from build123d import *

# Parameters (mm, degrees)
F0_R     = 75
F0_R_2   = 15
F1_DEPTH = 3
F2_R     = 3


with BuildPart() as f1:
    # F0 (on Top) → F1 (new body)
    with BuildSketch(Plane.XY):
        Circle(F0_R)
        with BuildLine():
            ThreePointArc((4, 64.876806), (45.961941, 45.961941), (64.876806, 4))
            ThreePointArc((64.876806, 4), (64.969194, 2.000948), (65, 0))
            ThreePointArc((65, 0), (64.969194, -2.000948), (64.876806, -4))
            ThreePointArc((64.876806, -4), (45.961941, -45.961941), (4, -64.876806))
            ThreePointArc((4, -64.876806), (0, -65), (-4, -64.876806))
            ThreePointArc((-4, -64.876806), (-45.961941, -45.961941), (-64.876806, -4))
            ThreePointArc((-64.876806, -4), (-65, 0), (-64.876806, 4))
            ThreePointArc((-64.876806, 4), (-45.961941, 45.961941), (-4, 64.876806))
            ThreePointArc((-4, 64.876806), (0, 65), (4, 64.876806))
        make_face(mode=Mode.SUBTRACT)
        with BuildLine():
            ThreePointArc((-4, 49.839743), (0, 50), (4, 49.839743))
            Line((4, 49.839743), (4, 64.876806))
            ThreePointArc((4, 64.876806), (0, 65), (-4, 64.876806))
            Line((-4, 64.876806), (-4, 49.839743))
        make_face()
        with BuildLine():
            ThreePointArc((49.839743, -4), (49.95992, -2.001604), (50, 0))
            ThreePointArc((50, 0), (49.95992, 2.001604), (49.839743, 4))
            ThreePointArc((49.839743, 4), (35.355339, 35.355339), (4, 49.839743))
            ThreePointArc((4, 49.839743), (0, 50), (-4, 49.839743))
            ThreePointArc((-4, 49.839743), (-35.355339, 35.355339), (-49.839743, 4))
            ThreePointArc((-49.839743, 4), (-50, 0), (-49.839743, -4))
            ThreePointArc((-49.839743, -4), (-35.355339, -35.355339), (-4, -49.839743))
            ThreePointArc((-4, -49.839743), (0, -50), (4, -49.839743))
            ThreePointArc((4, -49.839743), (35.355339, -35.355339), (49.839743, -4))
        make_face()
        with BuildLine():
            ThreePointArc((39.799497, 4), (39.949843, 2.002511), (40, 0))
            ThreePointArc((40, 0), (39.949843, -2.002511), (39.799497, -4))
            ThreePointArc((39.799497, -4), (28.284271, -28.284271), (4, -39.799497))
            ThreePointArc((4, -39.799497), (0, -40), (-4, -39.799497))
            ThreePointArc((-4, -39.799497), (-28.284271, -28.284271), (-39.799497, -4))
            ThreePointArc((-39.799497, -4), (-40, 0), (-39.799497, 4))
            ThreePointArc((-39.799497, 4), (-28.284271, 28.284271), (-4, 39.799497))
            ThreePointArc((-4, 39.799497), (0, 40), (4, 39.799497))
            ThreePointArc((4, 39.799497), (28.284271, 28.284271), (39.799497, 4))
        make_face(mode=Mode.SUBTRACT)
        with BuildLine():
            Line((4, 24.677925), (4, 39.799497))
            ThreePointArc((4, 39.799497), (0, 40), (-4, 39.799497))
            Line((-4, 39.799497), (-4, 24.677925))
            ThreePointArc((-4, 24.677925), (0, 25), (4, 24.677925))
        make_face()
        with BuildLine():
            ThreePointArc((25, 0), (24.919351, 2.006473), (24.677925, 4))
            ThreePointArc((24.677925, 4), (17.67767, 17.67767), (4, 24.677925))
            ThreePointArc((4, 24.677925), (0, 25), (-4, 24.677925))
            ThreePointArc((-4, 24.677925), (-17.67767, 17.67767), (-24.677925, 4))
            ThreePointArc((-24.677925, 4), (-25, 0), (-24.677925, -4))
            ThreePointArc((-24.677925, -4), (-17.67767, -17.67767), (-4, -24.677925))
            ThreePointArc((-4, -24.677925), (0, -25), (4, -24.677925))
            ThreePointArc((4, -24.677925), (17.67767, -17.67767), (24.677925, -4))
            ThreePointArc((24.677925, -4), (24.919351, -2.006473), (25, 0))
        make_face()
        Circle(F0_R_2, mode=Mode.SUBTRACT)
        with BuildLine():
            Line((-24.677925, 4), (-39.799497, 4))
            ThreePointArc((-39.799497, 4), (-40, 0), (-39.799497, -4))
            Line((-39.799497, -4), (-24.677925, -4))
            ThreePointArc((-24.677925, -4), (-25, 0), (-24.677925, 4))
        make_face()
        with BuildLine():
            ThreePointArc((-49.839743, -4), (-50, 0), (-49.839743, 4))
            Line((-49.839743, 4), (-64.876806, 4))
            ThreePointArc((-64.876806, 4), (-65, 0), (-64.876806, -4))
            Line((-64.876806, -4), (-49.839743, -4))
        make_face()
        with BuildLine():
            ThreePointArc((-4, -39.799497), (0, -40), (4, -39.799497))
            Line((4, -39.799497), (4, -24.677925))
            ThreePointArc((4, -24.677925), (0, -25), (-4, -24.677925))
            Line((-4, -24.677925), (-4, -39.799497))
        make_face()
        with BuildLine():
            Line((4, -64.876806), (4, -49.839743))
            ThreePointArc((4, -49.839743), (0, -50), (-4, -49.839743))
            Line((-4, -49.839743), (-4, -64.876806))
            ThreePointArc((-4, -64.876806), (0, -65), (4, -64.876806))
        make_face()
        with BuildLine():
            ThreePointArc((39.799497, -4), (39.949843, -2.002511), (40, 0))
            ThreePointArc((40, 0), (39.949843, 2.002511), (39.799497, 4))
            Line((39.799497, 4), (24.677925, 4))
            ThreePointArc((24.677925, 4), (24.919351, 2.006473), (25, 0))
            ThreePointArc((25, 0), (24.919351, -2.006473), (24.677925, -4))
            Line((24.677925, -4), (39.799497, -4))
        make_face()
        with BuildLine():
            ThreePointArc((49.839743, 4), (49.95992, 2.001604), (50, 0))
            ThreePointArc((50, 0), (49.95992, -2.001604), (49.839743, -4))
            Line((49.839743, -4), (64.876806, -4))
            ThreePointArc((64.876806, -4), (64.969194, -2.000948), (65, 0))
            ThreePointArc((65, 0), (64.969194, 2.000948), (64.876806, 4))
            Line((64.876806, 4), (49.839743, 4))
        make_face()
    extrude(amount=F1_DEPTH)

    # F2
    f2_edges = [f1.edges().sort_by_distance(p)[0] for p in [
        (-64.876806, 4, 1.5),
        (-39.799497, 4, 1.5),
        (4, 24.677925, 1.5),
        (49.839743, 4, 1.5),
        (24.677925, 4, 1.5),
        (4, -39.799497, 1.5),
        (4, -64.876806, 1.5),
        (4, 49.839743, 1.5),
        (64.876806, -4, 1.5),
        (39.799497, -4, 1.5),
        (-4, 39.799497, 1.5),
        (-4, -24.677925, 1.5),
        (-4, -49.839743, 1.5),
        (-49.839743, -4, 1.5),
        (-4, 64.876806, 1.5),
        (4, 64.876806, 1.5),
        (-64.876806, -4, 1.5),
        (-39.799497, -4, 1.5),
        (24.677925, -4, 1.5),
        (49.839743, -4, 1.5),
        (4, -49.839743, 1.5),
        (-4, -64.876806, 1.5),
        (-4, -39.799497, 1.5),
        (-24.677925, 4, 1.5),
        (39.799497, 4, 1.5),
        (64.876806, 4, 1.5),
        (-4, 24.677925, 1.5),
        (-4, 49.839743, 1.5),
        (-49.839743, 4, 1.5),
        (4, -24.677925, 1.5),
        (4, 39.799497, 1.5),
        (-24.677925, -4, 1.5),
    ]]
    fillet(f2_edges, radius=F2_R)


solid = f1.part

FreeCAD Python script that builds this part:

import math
import FreeCAD as App
import Part
import Sketcher
Q = App.Units.Quantity


def edges_at(feature, points):
    """Names of the edges that pass closest to the given points."""
    edges = feature.Shape.Edges
    near = lambda p: min(range(len(edges)), key=lambda i: edges[i].distToShape(Part.Vertex(*p))[0])
    return sorted({f"Edge{near(p) + 1}" for p in points})

doc = App.newDocument("Part")
body = doc.addObject("PartDesign::Body", "Body")

# Sketch on XY plane
sketch1 = doc.addObject("Sketcher::SketchObject", "Sketch")
body.addObject(sketch1)
sketch1.AttachmentSupport = (doc.XY_Plane, [""])
sketch1.MapMode = "FlatFace"
sketch1.addGeometry([
    Part.Circle(App.Vector(0, 0, 0), App.Vector(0, 0, 1), 75),  # 0
    Part.ArcOfCircle(Part.Circle(App.Vector(0, 0, 0), App.Vector(0, 0, 1), 40), math.radians(6), math.radians(84)),  # 1
    Part.LineSegment(App.Vector(40, 4, 0), App.Vector(25, 4, 0)),  # 2
    Part.ArcOfCircle(Part.Circle(App.Vector(0, 0, 0), App.Vector(0, 0, 1), 25), math.radians(9), math.radians(81)),  # 3
    Part.LineSegment(App.Vector(4, 25, 0), App.Vector(4, 40, 0)),  # 4
    Part.ArcOfCircle(Part.Circle(App.Vector(0, 0, 0), App.Vector(0, 0, 1), 40), math.radians(-84), math.radians(-6)),  # 5
    Part.LineSegment(App.Vector(4, -40, 0), App.Vector(4, -25, 0)),  # 6
    Part.ArcOfCircle(Part.Circle(App.Vector(0, 0, 0), App.Vector(0, 0, 1), 25), math.radians(-81), math.radians(-9)),  # 7
    Part.LineSegment(App.Vector(25, -4, 0), App.Vector(40, -4, 0)),  # 8
    Part.ArcOfCircle(Part.Circle(App.Vector(0, 0, 0), App.Vector(0, 0, 1), 40), math.radians(-174), math.radians(-96)),  # 9
    Part.LineSegment(App.Vector(-40, -4, 0), App.Vector(-25, -4, 0)),  # 10
    Part.ArcOfCircle(Part.Circle(App.Vector(0, 0, 0), App.Vector(0, 0, 1), 25), math.radians(-171), math.radians(-99)),  # 11
    Part.LineSegment(App.Vector(-4, -25, 0), App.Vector(-4, -40, 0)),  # 12
    Part.ArcOfCircle(Part.Circle(App.Vector(0, 0, 0), App.Vector(0, 0, 1), 40), math.radians(96), math.radians(174)),  # 13
    Part.LineSegment(App.Vector(-4, 40, 0), App.Vector(-4, 25, 0)),  # 14
    Part.ArcOfCircle(Part.Circle(App.Vector(0, 0, 0), App.Vector(0, 0, 1), 25), math.radians(99), math.radians(171)),  # 15
    Part.LineSegment(App.Vector(-25, 4, 0), App.Vector(-40, 4, 0)),  # 16
    Part.Circle(App.Vector(0, 0, 0), App.Vector(0, 0, 1), 15),  # 17
    Part.ArcOfCircle(Part.Circle(App.Vector(0, 0, 0), App.Vector(0, 0, 1), 65), math.radians(94), math.radians(176)),  # 18
    Part.LineSegment(App.Vector(-4, 65, 0), App.Vector(-4, 50, 0)),  # 19
    Part.ArcOfCircle(Part.Circle(App.Vector(0, 0, 0), App.Vector(0, 0, 1), 50), math.radians(95), math.radians(175)),  # 20
    Part.LineSegment(App.Vector(-50, 4, 0), App.Vector(-65, 4, 0)),  # 21
    Part.ArcOfCircle(Part.Circle(App.Vector(0, 0, 0), App.Vector(0, 0, 1), 50), math.radians(-175), math.radians(-95)),  # 22
    Part.LineSegment(App.Vector(-4, -50, 0), App.Vector(-4, -65, 0)),  # 23
    Part.ArcOfCircle(Part.Circle(App.Vector(0, 0, 0), App.Vector(0, 0, 1), 65), math.radians(-176), math.radians(-94)),  # 24
    Part.LineSegment(App.Vector(-65, -4, 0), App.Vector(-50, -4, 0)),  # 25
    Part.ArcOfCircle(Part.Circle(App.Vector(0, 0, 0), App.Vector(0, 0, 1), 50), math.radians(-85), math.radians(-5)),  # 26
    Part.LineSegment(App.Vector(50, -4, 0), App.Vector(65, -4, 0)),  # 27
    Part.ArcOfCircle(Part.Circle(App.Vector(0, 0, 0), App.Vector(0, 0, 1), 65), math.radians(-86), math.radians(-4)),  # 28
    Part.LineSegment(App.Vector(4, -65, 0), App.Vector(4, -50, 0)),  # 29
    Part.ArcOfCircle(Part.Circle(App.Vector(0, 0, 0), App.Vector(0, 0, 1), 50), math.radians(5), math.radians(85)),  # 30
    Part.LineSegment(App.Vector(4, 50, 0), App.Vector(4, 65, 0)),  # 31
    Part.ArcOfCircle(Part.Circle(App.Vector(0, 0, 0), App.Vector(0, 0, 1), 65), math.radians(4), math.radians(86)),  # 32
    Part.LineSegment(App.Vector(65, 4, 0), App.Vector(50, 4, 0)),  # 33
], False)
sketch1.addConstraint([
    Sketcher.Constraint("Coincident", 1, 1, 2, 1),
    Sketcher.Constraint("Coincident", 2, 2, 3, 1),
    Sketcher.Constraint("Coincident", 3, 2, 4, 1),
    Sketcher.Constraint("Coincident", 4, 2, 1, 2),
    Sketcher.Constraint("Coincident", 5, 1, 6, 1),
    Sketcher.Constraint("Coincident", 6, 2, 7, 1),
    Sketcher.Constraint("Coincident", 7, 2, 8, 1),
    Sketcher.Constraint("Coincident", 8, 2, 5, 2),
    Sketcher.Constraint("Coincident", 9, 1, 10, 1),
    Sketcher.Constraint("Coincident", 10, 2, 11, 1),
    Sketcher.Constraint("Coincident", 11, 2, 12, 1),
    Sketcher.Constraint("Coincident", 12, 2, 9, 2),
    Sketcher.Constraint("Coincident", 13, 1, 14, 1),
    Sketcher.Constraint("Coincident", 14, 2, 15, 1),
    Sketcher.Constraint("Coincident", 15, 2, 16, 1),
    Sketcher.Constraint("Coincident", 16, 2, 13, 2),
    Sketcher.Constraint("Coincident", 18, 1, 19, 1),
    Sketcher.Constraint("Coincident", 19, 2, 20, 1),
    Sketcher.Constraint("Coincident", 20, 2, 21, 1),
    Sketcher.Constraint("Coincident", 21, 2, 18, 2),
    Sketcher.Constraint("Coincident", 22, 2, 23, 1),
    Sketcher.Constraint("Coincident", 23, 2, 24, 2),
    Sketcher.Constraint("Coincident", 24, 1, 25, 1),
    Sketcher.Constraint("Coincident", 25, 2, 22, 1),
    Sketcher.Constraint("Coincident", 26, 2, 27, 1),
    Sketcher.Constraint("Coincident", 27, 2, 28, 2),
    Sketcher.Constraint("Coincident", 28, 1, 29, 1),
    Sketcher.Constraint("Coincident", 29, 2, 26, 1),
    Sketcher.Constraint("Coincident", 30, 2, 31, 1),
    Sketcher.Constraint("Coincident", 31, 2, 32, 2),
    Sketcher.Constraint("Coincident", 32, 1, 33, 1),
    Sketcher.Constraint("Coincident", 33, 2, 30, 1),
    Sketcher.Constraint("Horizontal", 2),
    Sketcher.Constraint("Vertical", 4),
    Sketcher.Constraint("Vertical", 6),
    Sketcher.Constraint("Horizontal", 8),
    Sketcher.Constraint("Horizontal", 10),
    Sketcher.Constraint("Vertical", 12),
    Sketcher.Constraint("Vertical", 14),
    Sketcher.Constraint("Horizontal", 16),
    Sketcher.Constraint("Vertical", 19),
    Sketcher.Constraint("Horizontal", 21),
    Sketcher.Constraint("Vertical", 23),
    Sketcher.Constraint("Horizontal", 25),
    Sketcher.Constraint("Horizontal", 27),
    Sketcher.Constraint("Vertical", 29),
    Sketcher.Constraint("Vertical", 31),
    Sketcher.Constraint("Horizontal", 33),
    Sketcher.Constraint("Coincident", 0, 3, -1, 1),
    Sketcher.Constraint("Coincident", 1, 3, -1, 1),
    Sketcher.Constraint("Coincident", 3, 3, -1, 1),
    Sketcher.Constraint("Coincident", 5, 3, -1, 1),
    Sketcher.Constraint("Coincident", 7, 3, -1, 1),
    Sketcher.Constraint("Coincident", 9, 3, -1, 1),
    Sketcher.Constraint("Coincident", 11, 3, -1, 1),
    Sketcher.Constraint("Coincident", 13, 3, -1, 1),
    Sketcher.Constraint("Coincident", 15, 3, -1, 1),
    Sketcher.Constraint("Coincident", 17, 3, -1, 1),
    Sketcher.Constraint("Coincident", 18, 3, -1, 1),
    Sketcher.Constraint("Coincident", 20, 3, -1, 1),
    Sketcher.Constraint("Coincident", 22, 3, -1, 1),
    Sketcher.Constraint("Coincident", 24, 3, -1, 1),
    Sketcher.Constraint("Coincident", 26, 3, -1, 1),
    Sketcher.Constraint("Coincident", 28, 3, -1, 1),
    Sketcher.Constraint("Coincident", 30, 3, -1, 1),
    Sketcher.Constraint("Coincident", 32, 3, -1, 1),
    Sketcher.Constraint("Equal", 1, 5),
    Sketcher.Constraint("Equal", 3, 7),
    Sketcher.Constraint("Equal", 5, 9),
    Sketcher.Constraint("Equal", 7, 11),
    Sketcher.Constraint("Equal", 9, 13),
    Sketcher.Constraint("Equal", 11, 15),
    Sketcher.Constraint("Equal", 20, 22),
    Sketcher.Constraint("Equal", 18, 24),
    Sketcher.Constraint("Equal", 22, 26),
    Sketcher.Constraint("Equal", 24, 28),
    Sketcher.Constraint("Equal", 26, 30),
    Sketcher.Constraint("Equal", 28, 32),
    Sketcher.Constraint("Horizontal", 8, 2, 9, 1),
    Sketcher.Constraint("Horizontal", 6, 2, 11, 2),
    Sketcher.Constraint("Horizontal", 4, 2, 13, 1),
    Sketcher.Constraint("Horizontal", 2, 2, 15, 2),
    Sketcher.Constraint("Horizontal", 16, 2, 20, 2),
    Sketcher.Constraint("Horizontal", 10, 2, 24, 1),
    Sketcher.Constraint("Horizontal", 25, 2, 26, 2),
    Sketcher.Constraint("Horizontal", 23, 2, 28, 1),
    Sketcher.Constraint("Horizontal", 19, 2, 30, 2),
    Sketcher.Constraint("Horizontal", 21, 2, 32, 1),
    Sketcher.Constraint("Vertical", 4, 2, 5, 1),
    Sketcher.Constraint("Vertical", 2, 2, 7, 2),
    Sketcher.Constraint("Vertical", 14, 2, 18, 1),
    Sketcher.Constraint("Vertical", 19, 2, 22, 2),
    Sketcher.Constraint("Equal", 16, 4),
    Sketcher.Constraint("Diameter", 0, Q("150 mm")),
    Sketcher.Constraint("Diameter", 17, Q("30 mm")),
    Sketcher.Constraint("Radius", 1, Q("39.999999 mm")),
    Sketcher.Constraint("Radius", 20, Q("50 mm")),
    Sketcher.Constraint("DistanceY", -1, 1, 1, 1, Q("4 mm")),
    Sketcher.Constraint("Radius", 3, Q("24.999995 mm")),
    Sketcher.Constraint("Radius", 18, Q("64.999998 mm")),
])
pad1 = doc.addObject("PartDesign::Pad", "Pad")
body.addObject(pad1)
pad1.Profile = sketch1
pad1.Length = 3
doc.recompute()

fillet = doc.addObject("PartDesign::Fillet", "Fillet")
body.addObject(fillet)
fillet.Base = (pad1, edges_at(pad1, [
    (-64.877, 4, 1.5),
    (-39.799, 4, 1.5),
    (4, 24.678, 1.5),
    (49.84, 4, 1.5),
    (24.678, 4, 1.5),
    (4, -39.799, 1.5),
    (4, -64.877, 1.5),
    (4, 49.84, 1.5),
    (64.877, -4, 1.5),
    (39.799, -4, 1.5),
    (-4, 39.799, 1.5),
    (-4, -24.678, 1.5),
    (-4, -49.84, 1.5),
    (-49.84, -4, 1.5),
    (-4, 64.877, 1.5),
    (4, 64.877, 1.5),
    (-64.877, -4, 1.5),
    (-39.799, -4, 1.5),
    (24.678, -4, 1.5),
    (49.84, -4, 1.5),
    (4, -49.84, 1.5),
    (-4, -64.877, 1.5),
    (-4, -39.799, 1.5),
    (-24.678, 4, 1.5),
    (39.799, 4, 1.5),
    (64.877, 4, 1.5),
    (-4, 24.678, 1.5),
    (-4, 49.84, 1.5),
    (-49.84, 4, 1.5),
    (4, -24.678, 1.5),
    (4, 39.799, 1.5),
    (-24.678, -4, 1.5),
]))
fillet.Radius = 3

doc.recompute()
